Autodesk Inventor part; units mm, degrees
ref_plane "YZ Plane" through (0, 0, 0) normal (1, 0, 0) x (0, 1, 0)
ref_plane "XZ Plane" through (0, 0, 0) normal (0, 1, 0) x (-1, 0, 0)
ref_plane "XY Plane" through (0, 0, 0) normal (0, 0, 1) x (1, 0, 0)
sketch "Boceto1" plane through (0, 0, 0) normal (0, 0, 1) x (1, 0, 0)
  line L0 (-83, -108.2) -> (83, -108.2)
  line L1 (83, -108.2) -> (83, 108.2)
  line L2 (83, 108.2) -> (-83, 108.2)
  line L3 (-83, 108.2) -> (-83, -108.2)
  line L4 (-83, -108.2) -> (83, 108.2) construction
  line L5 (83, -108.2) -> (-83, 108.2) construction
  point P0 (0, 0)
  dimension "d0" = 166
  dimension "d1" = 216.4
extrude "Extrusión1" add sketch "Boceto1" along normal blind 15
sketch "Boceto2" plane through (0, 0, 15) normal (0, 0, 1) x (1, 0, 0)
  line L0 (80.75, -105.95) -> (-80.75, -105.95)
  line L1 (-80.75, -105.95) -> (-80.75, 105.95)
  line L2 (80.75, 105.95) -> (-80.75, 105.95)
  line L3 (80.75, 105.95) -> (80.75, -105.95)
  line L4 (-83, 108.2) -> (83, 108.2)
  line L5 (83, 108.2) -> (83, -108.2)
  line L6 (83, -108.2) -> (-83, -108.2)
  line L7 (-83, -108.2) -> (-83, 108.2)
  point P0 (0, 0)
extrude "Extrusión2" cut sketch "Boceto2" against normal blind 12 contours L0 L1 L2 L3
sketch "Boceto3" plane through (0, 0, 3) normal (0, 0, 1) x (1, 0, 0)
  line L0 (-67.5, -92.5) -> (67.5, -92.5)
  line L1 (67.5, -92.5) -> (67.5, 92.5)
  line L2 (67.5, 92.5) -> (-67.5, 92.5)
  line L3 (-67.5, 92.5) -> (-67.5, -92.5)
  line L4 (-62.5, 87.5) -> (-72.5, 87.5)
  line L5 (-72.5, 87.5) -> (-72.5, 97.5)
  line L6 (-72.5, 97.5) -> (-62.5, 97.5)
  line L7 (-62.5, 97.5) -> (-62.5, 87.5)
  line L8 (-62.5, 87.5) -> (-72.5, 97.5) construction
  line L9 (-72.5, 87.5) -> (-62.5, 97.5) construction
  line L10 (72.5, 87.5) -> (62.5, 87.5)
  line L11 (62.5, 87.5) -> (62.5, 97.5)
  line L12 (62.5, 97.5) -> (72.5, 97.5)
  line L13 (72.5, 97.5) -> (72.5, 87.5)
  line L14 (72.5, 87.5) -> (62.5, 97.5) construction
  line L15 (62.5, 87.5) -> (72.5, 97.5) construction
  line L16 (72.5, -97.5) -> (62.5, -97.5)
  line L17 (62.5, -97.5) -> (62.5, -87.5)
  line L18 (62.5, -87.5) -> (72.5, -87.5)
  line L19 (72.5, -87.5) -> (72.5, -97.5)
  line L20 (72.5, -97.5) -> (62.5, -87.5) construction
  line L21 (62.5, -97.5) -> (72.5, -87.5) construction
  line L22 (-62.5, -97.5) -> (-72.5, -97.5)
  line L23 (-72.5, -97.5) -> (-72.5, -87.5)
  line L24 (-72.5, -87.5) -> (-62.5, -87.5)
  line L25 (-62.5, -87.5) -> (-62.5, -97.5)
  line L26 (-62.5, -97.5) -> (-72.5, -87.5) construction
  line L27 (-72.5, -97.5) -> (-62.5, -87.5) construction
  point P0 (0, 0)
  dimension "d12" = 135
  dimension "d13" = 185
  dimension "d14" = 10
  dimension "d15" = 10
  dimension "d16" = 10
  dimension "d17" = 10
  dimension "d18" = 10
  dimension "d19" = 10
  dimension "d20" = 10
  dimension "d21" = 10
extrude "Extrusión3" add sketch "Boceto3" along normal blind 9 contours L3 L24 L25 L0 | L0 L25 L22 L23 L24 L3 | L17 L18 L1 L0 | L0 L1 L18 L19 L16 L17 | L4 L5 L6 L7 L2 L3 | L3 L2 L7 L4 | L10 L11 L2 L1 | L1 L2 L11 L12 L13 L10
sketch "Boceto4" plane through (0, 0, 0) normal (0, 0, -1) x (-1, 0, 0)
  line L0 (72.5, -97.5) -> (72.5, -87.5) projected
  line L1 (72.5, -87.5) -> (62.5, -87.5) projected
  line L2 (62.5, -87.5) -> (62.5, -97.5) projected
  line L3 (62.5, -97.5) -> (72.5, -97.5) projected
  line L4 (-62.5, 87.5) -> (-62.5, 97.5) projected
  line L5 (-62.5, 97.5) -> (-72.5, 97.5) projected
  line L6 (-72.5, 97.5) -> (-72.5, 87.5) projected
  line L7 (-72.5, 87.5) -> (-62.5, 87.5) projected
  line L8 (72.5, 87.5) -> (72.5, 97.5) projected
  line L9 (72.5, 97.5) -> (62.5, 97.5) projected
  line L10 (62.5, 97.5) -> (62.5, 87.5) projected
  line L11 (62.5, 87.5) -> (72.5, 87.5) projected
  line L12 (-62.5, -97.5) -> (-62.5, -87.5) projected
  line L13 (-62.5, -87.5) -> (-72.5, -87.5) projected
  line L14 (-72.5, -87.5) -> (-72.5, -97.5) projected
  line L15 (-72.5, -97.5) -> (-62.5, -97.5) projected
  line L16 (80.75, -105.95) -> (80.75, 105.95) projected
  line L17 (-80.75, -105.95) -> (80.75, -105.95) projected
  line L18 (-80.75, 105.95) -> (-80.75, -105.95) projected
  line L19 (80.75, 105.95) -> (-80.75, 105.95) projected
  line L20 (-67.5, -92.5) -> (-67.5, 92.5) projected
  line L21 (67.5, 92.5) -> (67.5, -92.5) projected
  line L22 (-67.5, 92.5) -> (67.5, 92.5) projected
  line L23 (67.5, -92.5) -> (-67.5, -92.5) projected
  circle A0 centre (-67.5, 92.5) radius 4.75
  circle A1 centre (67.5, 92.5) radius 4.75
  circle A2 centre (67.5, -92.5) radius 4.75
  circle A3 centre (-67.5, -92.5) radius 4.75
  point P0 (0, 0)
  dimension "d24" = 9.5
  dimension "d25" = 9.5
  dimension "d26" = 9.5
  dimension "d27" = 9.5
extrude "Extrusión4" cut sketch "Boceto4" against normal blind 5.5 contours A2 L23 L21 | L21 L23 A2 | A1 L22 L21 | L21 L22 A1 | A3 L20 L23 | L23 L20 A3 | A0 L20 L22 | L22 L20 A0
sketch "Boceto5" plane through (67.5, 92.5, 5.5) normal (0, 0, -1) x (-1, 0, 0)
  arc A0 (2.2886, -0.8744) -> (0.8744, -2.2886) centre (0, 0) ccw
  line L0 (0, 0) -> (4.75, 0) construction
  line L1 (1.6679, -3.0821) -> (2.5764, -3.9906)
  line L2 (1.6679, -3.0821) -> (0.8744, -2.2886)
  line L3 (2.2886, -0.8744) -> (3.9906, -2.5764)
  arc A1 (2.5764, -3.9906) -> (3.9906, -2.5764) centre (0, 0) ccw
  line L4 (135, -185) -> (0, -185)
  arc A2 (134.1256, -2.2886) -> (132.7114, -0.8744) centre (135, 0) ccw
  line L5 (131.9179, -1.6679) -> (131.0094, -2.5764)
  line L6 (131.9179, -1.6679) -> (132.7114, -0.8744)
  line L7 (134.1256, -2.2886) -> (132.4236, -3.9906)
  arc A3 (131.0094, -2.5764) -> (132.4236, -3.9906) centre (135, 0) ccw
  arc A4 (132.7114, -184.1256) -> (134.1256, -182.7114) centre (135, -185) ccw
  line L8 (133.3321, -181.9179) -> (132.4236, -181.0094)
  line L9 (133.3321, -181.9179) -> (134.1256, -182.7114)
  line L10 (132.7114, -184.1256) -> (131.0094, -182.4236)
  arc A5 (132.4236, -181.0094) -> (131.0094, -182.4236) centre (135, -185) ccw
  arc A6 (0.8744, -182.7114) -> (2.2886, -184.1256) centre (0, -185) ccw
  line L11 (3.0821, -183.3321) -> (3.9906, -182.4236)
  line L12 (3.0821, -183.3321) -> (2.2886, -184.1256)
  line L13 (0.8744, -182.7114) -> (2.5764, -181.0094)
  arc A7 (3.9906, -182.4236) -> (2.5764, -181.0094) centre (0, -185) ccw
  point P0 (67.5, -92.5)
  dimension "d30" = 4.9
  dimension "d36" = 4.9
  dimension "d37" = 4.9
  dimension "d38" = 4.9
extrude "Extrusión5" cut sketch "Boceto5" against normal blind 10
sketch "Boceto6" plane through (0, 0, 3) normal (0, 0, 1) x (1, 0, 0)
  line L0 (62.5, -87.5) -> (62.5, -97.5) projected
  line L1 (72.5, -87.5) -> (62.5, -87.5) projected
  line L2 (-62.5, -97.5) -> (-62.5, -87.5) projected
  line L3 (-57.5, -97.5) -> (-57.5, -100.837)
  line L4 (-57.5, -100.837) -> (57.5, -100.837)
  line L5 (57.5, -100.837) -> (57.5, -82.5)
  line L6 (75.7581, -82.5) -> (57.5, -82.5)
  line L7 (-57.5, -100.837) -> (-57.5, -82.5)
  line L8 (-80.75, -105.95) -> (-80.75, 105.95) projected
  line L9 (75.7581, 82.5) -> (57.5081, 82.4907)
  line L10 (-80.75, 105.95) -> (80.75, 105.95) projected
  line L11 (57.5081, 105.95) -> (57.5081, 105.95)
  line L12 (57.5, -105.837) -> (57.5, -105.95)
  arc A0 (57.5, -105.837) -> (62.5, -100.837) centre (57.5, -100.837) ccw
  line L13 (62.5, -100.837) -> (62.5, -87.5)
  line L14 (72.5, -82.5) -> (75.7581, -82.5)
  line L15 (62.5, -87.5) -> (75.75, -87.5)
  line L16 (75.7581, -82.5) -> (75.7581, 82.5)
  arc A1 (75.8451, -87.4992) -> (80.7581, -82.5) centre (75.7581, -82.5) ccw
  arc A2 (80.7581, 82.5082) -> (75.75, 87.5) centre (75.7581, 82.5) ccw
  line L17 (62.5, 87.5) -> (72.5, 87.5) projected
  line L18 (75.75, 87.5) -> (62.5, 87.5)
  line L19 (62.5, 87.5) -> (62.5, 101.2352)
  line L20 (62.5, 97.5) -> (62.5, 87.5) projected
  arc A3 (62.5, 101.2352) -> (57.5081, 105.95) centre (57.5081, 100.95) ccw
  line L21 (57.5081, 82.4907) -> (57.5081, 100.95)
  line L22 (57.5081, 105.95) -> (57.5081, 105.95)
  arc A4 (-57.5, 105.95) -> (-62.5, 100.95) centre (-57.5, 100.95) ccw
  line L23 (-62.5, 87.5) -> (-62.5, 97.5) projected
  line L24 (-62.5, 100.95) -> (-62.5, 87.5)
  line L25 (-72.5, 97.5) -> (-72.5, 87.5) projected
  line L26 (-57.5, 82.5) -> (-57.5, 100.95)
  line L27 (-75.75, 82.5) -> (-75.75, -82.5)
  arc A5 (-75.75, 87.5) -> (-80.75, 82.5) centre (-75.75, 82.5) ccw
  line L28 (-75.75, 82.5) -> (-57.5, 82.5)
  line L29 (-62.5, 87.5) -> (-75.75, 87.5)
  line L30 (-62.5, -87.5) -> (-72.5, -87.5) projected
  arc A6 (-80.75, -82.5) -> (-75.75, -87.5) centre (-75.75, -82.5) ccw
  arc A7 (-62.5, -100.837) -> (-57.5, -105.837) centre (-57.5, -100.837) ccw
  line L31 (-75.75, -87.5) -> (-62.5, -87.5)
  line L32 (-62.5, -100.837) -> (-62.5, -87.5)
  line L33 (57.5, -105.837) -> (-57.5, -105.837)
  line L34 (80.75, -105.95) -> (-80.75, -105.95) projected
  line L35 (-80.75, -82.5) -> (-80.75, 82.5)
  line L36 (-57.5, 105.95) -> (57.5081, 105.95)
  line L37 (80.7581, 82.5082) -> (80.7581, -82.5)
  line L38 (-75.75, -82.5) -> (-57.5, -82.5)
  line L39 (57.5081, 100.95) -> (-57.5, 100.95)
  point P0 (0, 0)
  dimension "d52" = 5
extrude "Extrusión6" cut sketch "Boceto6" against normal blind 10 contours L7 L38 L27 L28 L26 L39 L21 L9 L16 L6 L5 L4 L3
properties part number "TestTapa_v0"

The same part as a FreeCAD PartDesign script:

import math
import FreeCAD as App
import Part
import Sketcher
Q = App.Units.Quantity

doc = App.newDocument("Part")
params = doc.addObject("Spreadsheet::Sheet", "Params")
for row, (alias, value) in enumerate([
    ("sketch1_width", "166 mm"),
    ("sketch1_height", "216.4 mm"),
    ("pad1_length", "15 mm"),
    ("sketch2_width", "161.5 mm"),
    ("sketch2_height", "211.9 mm"),
    ("pocket1_length", "12 mm"),
    ("sketch3_width", "10 mm"),
    ("pad2_length", "9 mm"),
    ("sketch4_diameter", "9.5 mm"),
    ("pocket2_length", "5.5 mm"),
    ("sketch5_radius", "2.45 mm"),
    ("sketch5_radius2", "4.75 mm"),
    ("pocket3_length", "10 mm"),
    ("sketch6_width", "115 mm"),
    ("sketch6_height", "165 mm"),
    ("sketch6_width2", "18.25 mm"),
    ("sketch6_height2", "18.45 mm"),
    ("sketch6_length", "18.25 mm"),
    ("pocket4_length", "10 mm"),
], start=1):
    params.set(f"A{row}", alias)
    params.set(f"B{row}", "=" + value)
    params.setAlias(f"B{row}", alias)

body = doc.addObject("PartDesign::Body", "Body")

sketch1 = body.newObject("Sketcher::SketchObject", "Sketch")
sketch1.AttachmentSupport = (doc.getObject("XY_Plane"), [""])
sketch1.MapMode = "FlatFace"
sketch1.addGeometry([
    Part.LineSegment(App.Vector(-83, 108, 0), App.Vector(-83, -108, 0)),
    Part.LineSegment(App.Vector(-83, -108, 0), App.Vector(83, -108, 0)),
    Part.LineSegment(App.Vector(83, -108, 0), App.Vector(83, 108, 0)),
    Part.LineSegment(App.Vector(83, 108, 0), App.Vector(-83, 108, 0)),
], False)
sketch1.addConstraint([
    Sketcher.Constraint("Coincident", 0, 2, 1, 1),
    Sketcher.Constraint("Coincident", 1, 2, 2, 1),
    Sketcher.Constraint("Coincident", 2, 2, 3, 1),
    Sketcher.Constraint("Coincident", 3, 2, 0, 1),
    Sketcher.Constraint("Vertical", 0),
    Sketcher.Constraint("Horizontal", 1),
    Sketcher.Constraint("Vertical", 2),
    Sketcher.Constraint("Horizontal", 3),
    Sketcher.Constraint("Symmetric", 0, 2, 2, 2, -1, 1),
    Sketcher.Constraint("DistanceX", 1, 1, 1, 2, 166.0),
    Sketcher.Constraint("DistanceY", 0, 2, 0, 1, 216.4),
])
sketch1.setExpression("Constraints[9]", "Params.sketch1_width")
sketch1.setExpression("Constraints[10]", "Params.sketch1_height")
pad1 = body.newObject("PartDesign::Pad", "Pad")
pad1.Profile = sketch1
pad1.setExpression("Length", "Params.pad1_length")

sketch2 = body.newObject("Sketcher::SketchObject", "Sketch001")
sketch2.AttachmentSupport = (doc.getObject("XY_Plane"), [""])
sketch2.MapMode = "FlatFace"
sketch2.AttachmentOffset = App.Placement(App.Vector(0, 0, 15), App.Rotation())
sketch2.addGeometry([
    Part.LineSegment(App.Vector(-81, -106, 0), App.Vector(81, -106, 0)),
    Part.LineSegment(App.Vector(81, -106, 0), App.Vector(81, 106, 0)),
    Part.LineSegment(App.Vector(81, 106, 0), App.Vector(-81, 106, 0)),
    Part.LineSegment(App.Vector(-81, 106, 0), App.Vector(-81, -106, 0)),
], False)
sketch2.addConstraint([
    Sketcher.Constraint("Coincident", 0, 2, 1, 1),
    Sketcher.Constraint("Coincident", 1, 2, 2, 1),
    Sketcher.Constraint("Coincident", 2, 2, 3, 1),
    Sketcher.Constraint("Coincident", 3, 2, 0, 1),
    Sketcher.Constraint("Horizontal", 0),
    Sketcher.Constraint("Vertical", 1),
    Sketcher.Constraint("Horizontal", 2),
    Sketcher.Constraint("Vertical", 3),
    Sketcher.Constraint("Symmetric", 0, 2, 2, 2, -1, 1),
    Sketcher.Constraint("DistanceX", 0, 1, 0, 2, 161.5),
    Sketcher.Constraint("DistanceY", 1, 1, 1, 2, 211.9),
])
sketch2.setExpression("Constraints[9]", "Params.sketch2_width")
sketch2.setExpression("Constraints[10]", "Params.sketch2_height")
pocket1 = body.newObject("PartDesign::Pocket", "Pocket")
pocket1.Profile = sketch2
pocket1.setExpression("Length", "Params.pocket1_length")

sketch3 = body.newObject("Sketcher::SketchObject", "Sketch002")
sketch3.AttachmentSupport = (doc.getObject("XY_Plane"), [""])
sketch3.MapMode = "FlatFace"
sketch3.AttachmentOffset = App.Placement(App.Vector(0, 0, 3), App.Rotation())
sketch3.addGeometry([
    Part.LineSegment(App.Vector(-62, -88, 0), App.Vector(-72, -88, 0)),
    Part.LineSegment(App.Vector(-72, -88, 0), App.Vector(-72, -98, 0)),
    Part.LineSegment(App.Vector(-72, -98, 0), App.Vector(-62, -98, 0)),
    Part.LineSegment(App.Vector(-62, -98, 0), App.Vector(-62, -88, 0)),
    Part.LineSegment(App.Vector(62, -88, 0), App.Vector(62, -98, 0)),
    Part.LineSegment(App.Vector(62, -98, 0), App.Vector(72, -98, 0)),
    Part.LineSegment(App.Vector(72, -98, 0), App.Vector(72, -88, 0)),
    Part.LineSegment(App.Vector(72, -88, 0), App.Vector(62, -88, 0)),
    Part.LineSegment(App.Vector(-72, 88, 0), App.Vector(-62, 88, 0)),
    Part.LineSegment(App.Vector(-62, 88, 0), App.Vector(-62, 98, 0)),
    Part.LineSegment(App.Vector(-62, 98, 0), App.Vector(-72, 98, 0)),
    Part.LineSegment(App.Vector(-72, 98, 0), App.Vector(-72, 88, 0)),
    Part.LineSegment(App.Vector(62, 88, 0), App.Vector(72, 88, 0)),
    Part.LineSegment(App.Vector(72, 88, 0), App.Vector(72, 98, 0)),
    Part.LineSegment(App.Vector(72, 98, 0), App.Vector(62, 98, 0)),
    Part.LineSegment(App.Vector(62, 98, 0), App.Vector(62, 88, 0)),
], False)
sketch3.addConstraint([
    Sketcher.Constraint("Coincident", 0, 2, 1, 1),
    Sketcher.Constraint("Coincident", 1, 2, 2, 1),
    Sketcher.Constraint("Coincident", 2, 2, 3, 1),
    Sketcher.Constraint("Coincident", 3, 2, 0, 1),
    Sketcher.Constraint("Coincident", 4, 2, 5, 1),
    Sketcher.Constraint("Coincident", 5, 2, 6, 1),
    Sketcher.Constraint("Coincident", 6, 2, 7, 1),
    Sketcher.Constraint("Coincident", 7, 2, 4, 1),
    Sketcher.Constraint("Coincident", 8, 2, 9, 1),
    Sketcher.Constraint("Coincident", 9, 2, 10, 1),
    Sketcher.Constraint("Coincident", 10, 2, 11, 1),
    Sketcher.Constraint("Coincident", 11, 2, 8, 1),
    Sketcher.Constraint("Coincident", 12, 2, 13, 1),
    Sketcher.Constraint("Coincident", 13, 2, 14, 1),
    Sketcher.Constraint("Coincident", 14, 2, 15, 1),
    Sketcher.Constraint("Coincident", 15, 2, 12, 1),
    Sketcher.Constraint("Horizontal", 0),
    Sketcher.Constraint("Vertical", 1),
    Sketcher.Constraint("Horizontal", 2),
    Sketcher.Constraint("Vertical", 3),
    Sketcher.Constraint("Vertical", 4),
    Sketcher.Constraint("Horizontal", 5),
    Sketcher.Constraint("Vertical", 6),
    Sketcher.Constraint("Horizontal", 7),
    Sketcher.Constraint("Horizontal", 8),
    Sketcher.Constraint("Vertical", 9),
    Sketcher.Constraint("Horizontal", 10),
    Sketcher.Constraint("Vertical", 11),
    Sketcher.Constraint("Horizontal", 12),
    Sketcher.Constraint("Vertical", 13),
    Sketcher.Constraint("Horizontal", 14),
    Sketcher.Constraint("Vertical", 15),
    Sketcher.Constraint("Symmetric", 7, 2, 8, 2, -1, 1),
    Sketcher.Constraint("Symmetric", 5, 2, 10, 2, -1, 1),
    Sketcher.Constraint("Symmetric", 0, 2, 12, 2, -1, 1),
    Sketcher.Constraint("Symmetric", 2, 2, 14, 2, -1, 1),
    Sketcher.Constraint("Symmetric", 2, 2, 4, 2, -2),
    Sketcher.Constraint("Symmetric", 0, 2, 6, 2, -2),
    Sketcher.Constraint("Equal", 14, 1),
    Sketcher.Constraint("DistanceX", 0, 2, 0, 1, 10.0),
    Sketcher.Constraint("DistanceX", 1, 2, 4, 2, 135.0),
    Sketcher.Constraint("DistanceY", 2, 2, 8, 2, 185.0),
])
sketch3.setExpression("Constraints[39]", "Params.sketch3_width")
pad2 = body.newObject("PartDesign::Pad", "Pad001")
pad2.Profile = sketch3
pad2.setExpression("Length", "Params.pad2_length")

sketch4 = body.newObject("Sketcher::SketchObject", "Sketch003")
sketch4.AttachmentSupport = (doc.getObject("XY_Plane"), [""])
sketch4.MapMode = "FlatFace"
sketch4.addGeometry([
    Part.Circle(App.Vector(-67.5, -92.5, 0), App.Vector(0, 0, 1), 4.8),
    Part.Circle(App.Vector(-67.5, 92.5, 0), App.Vector(0, 0, 1), 4.8),
    Part.Circle(App.Vector(67.5, -92.5, 0), App.Vector(0, 0, 1), 4.8),
    Part.Circle(App.Vector(67.5, 92.5, 0), App.Vector(0, 0, 1), 4.8),
], False)
sketch4.addConstraint([
    Sketcher.Constraint("Equal", 0, 1),
    Sketcher.Constraint("Equal", 1, 2),
    Sketcher.Constraint("Equal", 2, 3),
    Sketcher.Constraint("Symmetric", 1, 3, 2, 3, -1, 1),
    Sketcher.Constraint("Symmetric", 0, 3, 3, 3, -1, 1),
    Sketcher.Constraint("Symmetric", 0, 3, 2, 3, -2),
    Sketcher.Constraint("Diameter", 0, 9.5),
    Sketcher.Constraint("DistanceY", 0, 3, 1, 3, 185.0),
    Sketcher.Constraint("DistanceX", 0, 3, 2, 3, 135.0),
])
sketch4.setExpression("Constraints[6]", "Params.sketch4_diameter")
pocket2 = body.newObject("PartDesign::Pocket", "Pocket001")
pocket2.Profile = sketch4
pocket2.setExpression("Length", "Params.pocket2_length")
pocket2.Reversed = True

sketch5 = body.newObject("Sketcher::SketchObject", "Sketch004")
sketch5.AttachmentSupport = (doc.getObject("XY_Plane"), [""])
sketch5.MapMode = "FlatFace"
sketch5.AttachmentOffset = App.Placement(App.Vector(0, 0, 5.5), App.Rotation())
sketch5.addGeometry([
    Part.LineSegment(App.Vector(63.5, 89.9, 0), App.Vector(65.2, 91.6, 0)),
    Part.ArcOfCircle(Part.Circle(App.Vector(67.5, 92.5, 0), App.Vector(0, 0, 1), 2.4), math.radians(-111), math.radians(201)),
    Part.LineSegment(App.Vector(66.6, 90.2, 0), App.Vector(64.9, 88.5, 0)),
    Part.ArcOfCircle(Part.Circle(App.Vector(67.5, 92.5, 0), App.Vector(0, 0, 1), 4.8), math.radians(-147), math.radians(-123)),
    Part.ArcOfCircle(Part.Circle(App.Vector(67.5, -92.5, 0), App.Vector(0, 0, 1), 2.4), math.radians(159), math.radians(471)),
    Part.LineSegment(App.Vector(65.2, -91.6, 0), App.Vector(63.5, -89.9, 0)),
    Part.ArcOfCircle(Part.Circle(App.Vector(67.5, -92.5, 0), App.Vector(0, 0, 1), 4.8), math.radians(123), math.radians(147)),
    Part.LineSegment(App.Vector(64.9, -88.5, 0), App.Vector(66.6, -90.2, 0)),
    Part.ArcOfCircle(Part.Circle(App.Vector(-67.5, -92.5, 0), App.Vector(0, 0, 1), 2.4), math.radians(69), math.radians(381)),
    Part.LineSegment(App.Vector(-66.6, -90.2, 0), App.Vector(-64.9, -88.5, 0)),
    Part.ArcOfCircle(Part.Circle(App.Vector(-67.5, -92.5, 0), App.Vector(0, 0, 1), 4.8), math.radians(33), math.radians(57)),
    Part.LineSegment(App.Vector(-63.5, -89.9, 0), App.Vector(-65.2, -91.6, 0)),
    Part.LineSegment(App.Vector(-64.9, 88.5, 0), App.Vector(-66.6, 90.2, 0)),
    Part.ArcOfCircle(Part.Circle(App.Vector(-67.5, 92.5, 0), App.Vector(0, 0, 1), 2.4), math.radians(-21), math.radians(291)),
    Part.LineSegment(App.Vector(-65.2, 91.6, 0), App.Vector(-63.5, 89.9, 0)),
    Part.ArcOfCircle(Part.Circle(App.Vector(-67.5, 92.5, 0), App.Vector(0, 0, 1), 4.8), math.radians(-57), math.radians(-33)),
], False)
sketch5.addConstraint([
    Sketcher.Constraint("Coincident", 0, 2, 1, 2),
    Sketcher.Constraint("Coincident", 1, 1, 2, 1),
    Sketcher.Constraint("Coincident", 2, 2, 3, 2),
    Sketcher.Constraint("Coincident", 3, 1, 0, 1),
    Sketcher.Constraint("Coincident", 4, 1, 5, 1),
    Sketcher.Constraint("Coincident", 5, 2, 6, 2),
    Sketcher.Constraint("Coincident", 6, 1, 7, 1),
    Sketcher.Constraint("Coincident", 7, 2, 4, 2),
    Sketcher.Constraint("Coincident", 8, 1, 9, 1),
    Sketcher.Constraint("Coincident", 9, 2, 10, 2),
    Sketcher.Constraint("Coincident", 10, 1, 11, 1),
    Sketcher.Constraint("Coincident", 11, 2, 8, 2),
    Sketcher.Constraint("Coincident", 12, 2, 13, 2),
    Sketcher.Constraint("Coincident", 13, 1, 14, 1),
    Sketcher.Constraint("Coincident", 14, 2, 15, 2),
    Sketcher.Constraint("Coincident", 15, 1, 12, 1),
    Sketcher.Constraint("Coincident", 3, 3, 1, 3),
    Sketcher.Constraint("Coincident", 6, 3, 4, 3),
    Sketcher.Constraint("Coincident", 10, 3, 8, 3),
    Sketcher.Constraint("Coincident", 15, 3, 13, 3),
    Sketcher.Constraint("Equal", 1, 4),
    Sketcher.Constraint("Equal", 3, 6),
    Sketcher.Constraint("Equal", 4, 8),
    Sketcher.Constraint("Equal", 6, 10),
    Sketcher.Constraint("Equal", 8, 13),
    Sketcher.Constraint("Equal", 10, 15),
    Sketcher.Constraint("Symmetric", 1, 3, 8, 3, -1, 1),
    Sketcher.Constraint("Symmetric", 4, 3, 13, 3, -1, 1),
    Sketcher.Constraint("Symmetric", 4, 3, 8, 3, -2),
    Sketcher.Constraint("Parallel", 0, 2),
    Sketcher.Constraint("Perpendicular", 2, 5),
    Sketcher.Constraint("Parallel", 5, 7),
    Sketcher.Constraint("Perpendicular", 7, 9),
    Sketcher.Constraint("Parallel", 9, 11),
    Sketcher.Constraint("Perpendicular", 11, 12),
    Sketcher.Constraint("Parallel", 12, 14),
    Sketcher.Constraint("Horizontal", 7, 2, 8, 1),
    Sketcher.Constraint("Horizontal", 6, 1, 9, 2),
    Sketcher.Constraint("Horizontal", 5, 2, 10, 1),
    Sketcher.Constraint("Horizontal", 1, 1, 12, 2),
    Sketcher.Constraint("Horizontal", 0, 2, 13, 1),
    Sketcher.Constraint("Vertical", 0, 2, 4, 1),
    Sketcher.Constraint("Vertical", 2, 2, 6, 1),
    Sketcher.Constraint("Equal", 0, 2),
    Sketcher.Constraint("Radius", 1, 2.45),
    Sketcher.Constraint("Radius", 3, 4.75),
    Sketcher.Constraint("DistanceY", 4, 3, 1, 3, 185.0),
    Sketcher.Constraint("DistanceX", 8, 3, 4, 3, 135.0),
    Sketcher.Constraint("Distance", 0, 2.407),
])
sketch5.setExpression("Constraints[44]", "Params.sketch5_radius")
sketch5.setExpression("Constraints[45]", "Params.sketch5_radius2")
pocket3 = body.newObject("PartDesign::Pocket", "Pocket002")
pocket3.Profile = sketch5
pocket3.setExpression("Length", "Params.pocket3_length")
pocket3.Reversed = True

sketch6 = body.newObject("Sketcher::SketchObject", "Sketch005")
sketch6.AttachmentSupport = (doc.getObject("XY_Plane"), [""])
sketch6.MapMode = "FlatFace"
sketch6.AttachmentOffset = App.Placement(App.Vector(0, 0, 3), App.Rotation())
sketch6.addGeometry([
    Part.LineSegment(App.Vector(-58, -82, 0), App.Vector(-58, -101, 0)),
    Part.LineSegment(App.Vector(-58, -101, 0), App.Vector(58, -101, 0)),
    Part.LineSegment(App.Vector(58, -101, 0), App.Vector(58, -82, 0)),
    Part.LineSegment(App.Vector(58, -82, 0), App.Vector(76, -82, 0)),
    Part.LineSegment(App.Vector(76, -82, 0), App.Vector(76, 82, 0)),
    Part.LineSegment(App.Vector(76, 82, 0), App.Vector(58, 82, 0)),
    Part.LineSegment(App.Vector(58, 82, 0), App.Vector(58, 101, 0)),
    Part.LineSegment(App.Vector(58, 101, 0), App.Vector(-58, 101, 0)),
    Part.LineSegment(App.Vector(-58, 101, 0), App.Vector(-58, 82, 0)),
    Part.LineSegment(App.Vector(-58, 82, 0), App.Vector(-76, 82, 0)),
    Part.LineSegment(App.Vector(-76, 82, 0), App.Vector(-76, -82, 0)),
    Part.LineSegment(App.Vector(-76, -82, 0), App.Vector(-58, -82, 0)),
], False)
sketch6.addConstraint([
    Sketcher.Constraint("Coincident", 0, 2, 1, 1),
    Sketcher.Constraint("Coincident", 1, 2, 2, 1),
    Sketcher.Constraint("Coincident", 2, 2, 3, 1),
    Sketcher.Constraint("Coincident", 3, 2, 4, 1),
    Sketcher.Constraint("Coincident", 4, 2, 5, 1),
    Sketcher.Constraint("Coincident", 5, 2, 6, 1),
    Sketcher.Constraint("Coincident", 6, 2, 7, 1),
    Sketcher.Constraint("Coincident", 7, 2, 8, 1),
    Sketcher.Constraint("Coincident", 8, 2, 9, 1),
    Sketcher.Constraint("Coincident", 9, 2, 10, 1),
    Sketcher.Constraint("Coincident", 10, 2, 11, 1),
    Sketcher.Constraint("Coincident", 11, 2, 0, 1),
    Sketcher.Constraint("Vertical", 0),
    Sketcher.Constraint("Horizontal", 1),
    Sketcher.Constraint("Vertical", 2),
    Sketcher.Constraint("Horizontal", 3),
    Sketcher.Constraint("Vertical", 4),
    Sketcher.Constraint("Vertical", 6),
    Sketcher.Constraint("Horizontal", 7),
    Sketcher.Constraint("Vertical", 8),
    Sketcher.Constraint("Horizontal", 9),
    Sketcher.Constraint("Vertical", 10),
    Sketcher.Constraint("Horizontal", 11),
    Sketcher.Constraint("Symmetric", 2, 2, 8, 2, -1, 1),
    Sketcher.Constraint("Symmetric", 2, 2, 11, 2, -2),
    Sketcher.Constraint("Horizontal", 4, 2, 8, 2),
    Sketcher.Constraint("DistanceX", 1, 1, 1, 2, 115.0),
    Sketcher.Constraint("DistanceY", 4, 1, 4, 2, 165.0),
    Sketcher.Constraint("DistanceX", 9, 2, 9, 1, 18.25),
    Sketcher.Constraint("DistanceY", 8, 2, 8, 1, 18.45),
    Sketcher.Constraint("Angle", 5, Q("-179.9708 deg")),
    Sketcher.Constraint("Distance", 5, 18.25),
    Sketcher.Constraint("DistanceX", 3, 1, 3, 2, 18.258),
    Sketcher.Constraint("DistanceY", 0, 2, 0, 1, 18.337),
])
sketch6.setExpression("Constraints[26]", "Params.sketch6_width")
sketch6.setExpression("Constraints[27]", "Params.sketch6_height")
sketch6.setExpression("Constraints[28]", "Params.sketch6_width2")
sketch6.setExpression("Constraints[29]", "Params.sketch6_height2")
sketch6.setExpression("Constraints[31]", "Params.sketch6_length")
pocket4 = body.newObject("PartDesign::Pocket", "Pocket003")
pocket4.Profile = sketch6
pocket4.setExpression("Length", "Params.pocket4_length")

doc.recompute()
